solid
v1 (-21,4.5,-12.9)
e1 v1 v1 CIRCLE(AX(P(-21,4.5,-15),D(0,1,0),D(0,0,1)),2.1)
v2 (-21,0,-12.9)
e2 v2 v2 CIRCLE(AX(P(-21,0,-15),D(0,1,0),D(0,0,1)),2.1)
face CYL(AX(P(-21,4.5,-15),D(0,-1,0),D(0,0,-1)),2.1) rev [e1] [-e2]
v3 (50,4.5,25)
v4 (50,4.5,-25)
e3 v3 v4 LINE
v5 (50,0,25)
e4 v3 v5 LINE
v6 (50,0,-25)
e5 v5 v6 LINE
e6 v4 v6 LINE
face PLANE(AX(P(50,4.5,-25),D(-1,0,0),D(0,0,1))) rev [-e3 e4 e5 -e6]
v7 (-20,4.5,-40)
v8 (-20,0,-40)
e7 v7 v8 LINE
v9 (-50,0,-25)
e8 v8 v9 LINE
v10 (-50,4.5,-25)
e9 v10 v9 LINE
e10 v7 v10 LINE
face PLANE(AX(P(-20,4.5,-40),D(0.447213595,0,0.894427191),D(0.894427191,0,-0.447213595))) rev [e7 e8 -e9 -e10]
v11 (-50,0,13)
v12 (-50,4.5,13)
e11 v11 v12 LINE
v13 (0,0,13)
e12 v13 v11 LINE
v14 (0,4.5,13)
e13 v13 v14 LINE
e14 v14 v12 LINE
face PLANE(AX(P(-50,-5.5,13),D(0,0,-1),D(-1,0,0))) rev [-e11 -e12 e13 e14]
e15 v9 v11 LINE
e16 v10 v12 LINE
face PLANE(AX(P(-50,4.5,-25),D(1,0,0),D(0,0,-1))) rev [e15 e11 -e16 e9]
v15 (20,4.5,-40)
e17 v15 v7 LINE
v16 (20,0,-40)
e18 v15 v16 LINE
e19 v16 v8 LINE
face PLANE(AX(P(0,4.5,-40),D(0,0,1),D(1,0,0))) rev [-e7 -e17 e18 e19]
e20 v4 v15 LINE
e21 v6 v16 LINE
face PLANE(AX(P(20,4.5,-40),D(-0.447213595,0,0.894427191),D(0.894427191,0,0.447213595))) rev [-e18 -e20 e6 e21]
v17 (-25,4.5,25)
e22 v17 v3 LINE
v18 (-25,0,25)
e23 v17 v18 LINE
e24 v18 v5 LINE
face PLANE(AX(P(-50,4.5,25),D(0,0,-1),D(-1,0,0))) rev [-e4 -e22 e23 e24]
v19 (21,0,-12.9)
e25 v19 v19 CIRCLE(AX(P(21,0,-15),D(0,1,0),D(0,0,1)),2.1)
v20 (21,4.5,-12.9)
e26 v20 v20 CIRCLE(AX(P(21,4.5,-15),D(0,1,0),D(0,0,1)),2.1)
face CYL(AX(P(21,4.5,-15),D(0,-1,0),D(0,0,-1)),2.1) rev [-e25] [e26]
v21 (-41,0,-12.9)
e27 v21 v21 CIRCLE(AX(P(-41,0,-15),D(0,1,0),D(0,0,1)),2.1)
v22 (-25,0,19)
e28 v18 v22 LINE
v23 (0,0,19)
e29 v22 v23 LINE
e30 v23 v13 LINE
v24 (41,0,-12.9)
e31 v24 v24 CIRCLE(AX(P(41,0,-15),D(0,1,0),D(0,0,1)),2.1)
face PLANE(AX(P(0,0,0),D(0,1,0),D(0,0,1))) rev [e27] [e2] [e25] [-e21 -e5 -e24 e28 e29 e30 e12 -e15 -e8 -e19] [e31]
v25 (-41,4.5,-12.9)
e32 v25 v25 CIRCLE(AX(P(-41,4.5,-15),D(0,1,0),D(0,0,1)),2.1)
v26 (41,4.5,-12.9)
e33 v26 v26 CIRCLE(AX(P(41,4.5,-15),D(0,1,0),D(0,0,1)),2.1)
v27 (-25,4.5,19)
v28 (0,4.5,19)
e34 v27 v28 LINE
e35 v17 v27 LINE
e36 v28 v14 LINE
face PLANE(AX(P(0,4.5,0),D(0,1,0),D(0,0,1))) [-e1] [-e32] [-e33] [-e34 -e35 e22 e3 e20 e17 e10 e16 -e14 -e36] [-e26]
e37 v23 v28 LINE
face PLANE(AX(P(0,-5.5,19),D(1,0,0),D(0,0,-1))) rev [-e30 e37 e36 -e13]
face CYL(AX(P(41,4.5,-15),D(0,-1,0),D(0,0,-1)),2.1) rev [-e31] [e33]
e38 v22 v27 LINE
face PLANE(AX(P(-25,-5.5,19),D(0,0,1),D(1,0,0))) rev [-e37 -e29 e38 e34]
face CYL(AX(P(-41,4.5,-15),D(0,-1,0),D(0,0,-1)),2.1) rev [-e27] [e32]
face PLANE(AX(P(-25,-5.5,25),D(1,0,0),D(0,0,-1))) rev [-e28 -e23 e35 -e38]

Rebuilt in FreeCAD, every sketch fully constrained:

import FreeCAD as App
import Part
import Sketcher

V = App.Vector

doc = App.newDocument("Part")
body = doc.addObject("PartDesign::Body", "Body")

# Sketch on XZ plane
sketch1 = doc.addObject("Sketcher::SketchObject", "Sketch")
body.addObject(sketch1)
sketch1.AttachmentSupport = (doc.XZ_Plane, [""])
sketch1.MapMode = "FlatFace"
sketch1.addGeometry(Part.LineSegment(V(50, -25, 0), V(20, -40, 0)), False)
sketch1.addGeometry(Part.LineSegment(V(20, -40, 0), V(-20, -40, 0)), False)
sketch1.addGeometry(Part.LineSegment(V(-20, -40, 0), V(-50, -25, 0)), False)
sketch1.addGeometry(Part.LineSegment(V(-50, -25, 0), V(-50, 25, 0)), False)
sketch1.addGeometry(Part.LineSegment(V(-50, 25, 0), V(50, 25, 0)), False)
sketch1.addGeometry(Part.LineSegment(V(50, 25, 0), V(50, -25, 0)), False)
sketch1.addGeometry(Part.Circle(V(41, -15, 0), V(0, 0, 1), 2.1), False)
sketch1.addGeometry(Part.Circle(V(21, -15, 0), V(0, 0, 1), 2.1), False)
sketch1.addGeometry(Part.Circle(V(-21, -15, 0), V(0, 0, 1), 2.1), False)
sketch1.addGeometry(Part.Circle(V(-41, -15, 0), V(0, 0, 1), 2.1), False)
sketch1.addConstraint(Sketcher.Constraint("Coincident", 0, 2, 1, 1))
sketch1.addConstraint(Sketcher.Constraint("Coincident", 1, 2, 2, 1))
sketch1.addConstraint(Sketcher.Constraint("Coincident", 2, 2, 3, 1))
sketch1.addConstraint(Sketcher.Constraint("Coincident", 3, 2, 4, 1))
sketch1.addConstraint(Sketcher.Constraint("Coincident", 4, 2, 5, 1))
sketch1.addConstraint(Sketcher.Constraint("Coincident", 5, 2, 0, 1))
sketch1.addConstraint(Sketcher.Constraint("Horizontal", 1))
sketch1.addConstraint(Sketcher.Constraint("Vertical", 3))
sketch1.addConstraint(Sketcher.Constraint("Horizontal", 4))
sketch1.addConstraint(Sketcher.Constraint("Vertical", 5))
sketch1.addConstraint(Sketcher.Constraint("Equal", 6, 7))
sketch1.addConstraint(Sketcher.Constraint("Equal", 7, 8))
sketch1.addConstraint(Sketcher.Constraint("Equal", 8, 9))
sketch1.addConstraint(Sketcher.Constraint("Symmetric", 2, 2, 4, 2, -1, 1))
sketch1.addConstraint(Sketcher.Constraint("Symmetric", 7, 3, 8, 3, -2))
sketch1.addConstraint(Sketcher.Constraint("Symmetric", 6, 3, 9, 3, -2))
sketch1.addConstraint(Sketcher.Constraint("Horizontal", 6, 3, 7, 3))
sketch1.addConstraint(Sketcher.Constraint("Horizontal", 2, 2, 5, 2))
sketch1.addConstraint(Sketcher.Constraint("Equal", 0, 2))
sketch1.addConstraint(Sketcher.Constraint("Diameter", 6, 4.2))
sketch1.addConstraint(Sketcher.Constraint("DistanceX", 1, 2, 1, 1, 40.0))
sketch1.addConstraint(Sketcher.Constraint("DistanceX", 4, 1, 4, 2, 100.0))
sketch1.addConstraint(Sketcher.Constraint("DistanceY", 3, 1, 3, 2, 50.0))
sketch1.addConstraint(Sketcher.Constraint("DistanceX", -1, 1, 6, 3, 41.0))
sketch1.addConstraint(Sketcher.Constraint("DistanceY", 6, 3, -1, 1, 15.0))
sketch1.addConstraint(Sketcher.Constraint("DistanceX", -1, 1, 7, 3, 21.0))
sketch1.addConstraint(Sketcher.Constraint("DistanceY", 0, 2, -1, 1, 40.0))
pad1 = doc.addObject("PartDesign::Pad", "Pad")
body.addObject(pad1)
pad1.Profile = sketch1
pad1.Length = 4.5
pad1.Reversed = True

# Sketch on XZ plane
sketch2 = doc.addObject("Sketcher::SketchObject", "Sketch001")
body.addObject(sketch2)
sketch2.AttachmentSupport = (doc.XZ_Plane, [""])
sketch2.MapMode = "FlatFace"
sketch2.AttachmentOffset = App.Placement(V(0, 0, -4.5), App.Rotation())
sketch2.addGeometry(Part.LineSegment(V(-50, 25, 0), V(-25, 25, 0)), False)
sketch2.addGeometry(Part.LineSegment(V(-25, 25, 0), V(-25, 19, 0)), False)
sketch2.addGeometry(Part.LineSegment(V(-25, 19, 0), V(0, 19, 0)), False)
sketch2.addGeometry(Part.LineSegment(V(0, 19, 0), V(0, 13, 0)), False)
sketch2.addGeometry(Part.LineSegment(V(0, 13, 0), V(-50, 13, 0)), False)
sketch2.addGeometry(Part.LineSegment(V(-50, 13, 0), V(-50, 25, 0)), False)
sketch2.addConstraint(Sketcher.Constraint("Coincident", 0, 2, 1, 1))
sketch2.addConstraint(Sketcher.Constraint("Coincident", 1, 2, 2, 1))
sketch2.addConstraint(Sketcher.Constraint("Coincident", 2, 2, 3, 1))
sketch2.addConstraint(Sketcher.Constraint("Coincident", 3, 2, 4, 1))
sketch2.addConstraint(Sketcher.Constraint("Coincident", 4, 2, 5, 1))
sketch2.addConstraint(Sketcher.Constraint("Coincident", 5, 2, 0, 1))
sketch2.addConstraint(Sketcher.Constraint("Horizontal", 0))
sketch2.addConstraint(Sketcher.Constraint("Vertical", 1))
sketch2.addConstraint(Sketcher.Constraint("Horizontal", 2))
sketch2.addConstraint(Sketcher.Constraint("Vertical", 3))
sketch2.addConstraint(Sketcher.Constraint("Horizontal", 4))
sketch2.addConstraint(Sketcher.Constraint("Vertical", 5))
sketch2.addConstraint(Sketcher.Constraint("PointOnObject", 2, 2, -2))
sketch2.addConstraint(Sketcher.Constraint("Equal", 0, 2))
sketch2.addConstraint(Sketcher.Constraint("Equal", 1, 3))
sketch2.addConstraint(Sketcher.Constraint("DistanceX", 0, 1, 0, 2, 25.0))
sketch2.addConstraint(Sketcher.Constraint("DistanceY", 1, 2, 1, 1, 6.0))
sketch2.addConstraint(Sketcher.Constraint("DistanceY", -1, 1, 0, 2, 25.0))
pocket1 = doc.addObject("PartDesign::Pocket", "Pocket")
body.addObject(pocket1)
pocket1.Profile = sketch2
pocket1.Length = 10
pocket1.Reversed = True

doc.recompute()
